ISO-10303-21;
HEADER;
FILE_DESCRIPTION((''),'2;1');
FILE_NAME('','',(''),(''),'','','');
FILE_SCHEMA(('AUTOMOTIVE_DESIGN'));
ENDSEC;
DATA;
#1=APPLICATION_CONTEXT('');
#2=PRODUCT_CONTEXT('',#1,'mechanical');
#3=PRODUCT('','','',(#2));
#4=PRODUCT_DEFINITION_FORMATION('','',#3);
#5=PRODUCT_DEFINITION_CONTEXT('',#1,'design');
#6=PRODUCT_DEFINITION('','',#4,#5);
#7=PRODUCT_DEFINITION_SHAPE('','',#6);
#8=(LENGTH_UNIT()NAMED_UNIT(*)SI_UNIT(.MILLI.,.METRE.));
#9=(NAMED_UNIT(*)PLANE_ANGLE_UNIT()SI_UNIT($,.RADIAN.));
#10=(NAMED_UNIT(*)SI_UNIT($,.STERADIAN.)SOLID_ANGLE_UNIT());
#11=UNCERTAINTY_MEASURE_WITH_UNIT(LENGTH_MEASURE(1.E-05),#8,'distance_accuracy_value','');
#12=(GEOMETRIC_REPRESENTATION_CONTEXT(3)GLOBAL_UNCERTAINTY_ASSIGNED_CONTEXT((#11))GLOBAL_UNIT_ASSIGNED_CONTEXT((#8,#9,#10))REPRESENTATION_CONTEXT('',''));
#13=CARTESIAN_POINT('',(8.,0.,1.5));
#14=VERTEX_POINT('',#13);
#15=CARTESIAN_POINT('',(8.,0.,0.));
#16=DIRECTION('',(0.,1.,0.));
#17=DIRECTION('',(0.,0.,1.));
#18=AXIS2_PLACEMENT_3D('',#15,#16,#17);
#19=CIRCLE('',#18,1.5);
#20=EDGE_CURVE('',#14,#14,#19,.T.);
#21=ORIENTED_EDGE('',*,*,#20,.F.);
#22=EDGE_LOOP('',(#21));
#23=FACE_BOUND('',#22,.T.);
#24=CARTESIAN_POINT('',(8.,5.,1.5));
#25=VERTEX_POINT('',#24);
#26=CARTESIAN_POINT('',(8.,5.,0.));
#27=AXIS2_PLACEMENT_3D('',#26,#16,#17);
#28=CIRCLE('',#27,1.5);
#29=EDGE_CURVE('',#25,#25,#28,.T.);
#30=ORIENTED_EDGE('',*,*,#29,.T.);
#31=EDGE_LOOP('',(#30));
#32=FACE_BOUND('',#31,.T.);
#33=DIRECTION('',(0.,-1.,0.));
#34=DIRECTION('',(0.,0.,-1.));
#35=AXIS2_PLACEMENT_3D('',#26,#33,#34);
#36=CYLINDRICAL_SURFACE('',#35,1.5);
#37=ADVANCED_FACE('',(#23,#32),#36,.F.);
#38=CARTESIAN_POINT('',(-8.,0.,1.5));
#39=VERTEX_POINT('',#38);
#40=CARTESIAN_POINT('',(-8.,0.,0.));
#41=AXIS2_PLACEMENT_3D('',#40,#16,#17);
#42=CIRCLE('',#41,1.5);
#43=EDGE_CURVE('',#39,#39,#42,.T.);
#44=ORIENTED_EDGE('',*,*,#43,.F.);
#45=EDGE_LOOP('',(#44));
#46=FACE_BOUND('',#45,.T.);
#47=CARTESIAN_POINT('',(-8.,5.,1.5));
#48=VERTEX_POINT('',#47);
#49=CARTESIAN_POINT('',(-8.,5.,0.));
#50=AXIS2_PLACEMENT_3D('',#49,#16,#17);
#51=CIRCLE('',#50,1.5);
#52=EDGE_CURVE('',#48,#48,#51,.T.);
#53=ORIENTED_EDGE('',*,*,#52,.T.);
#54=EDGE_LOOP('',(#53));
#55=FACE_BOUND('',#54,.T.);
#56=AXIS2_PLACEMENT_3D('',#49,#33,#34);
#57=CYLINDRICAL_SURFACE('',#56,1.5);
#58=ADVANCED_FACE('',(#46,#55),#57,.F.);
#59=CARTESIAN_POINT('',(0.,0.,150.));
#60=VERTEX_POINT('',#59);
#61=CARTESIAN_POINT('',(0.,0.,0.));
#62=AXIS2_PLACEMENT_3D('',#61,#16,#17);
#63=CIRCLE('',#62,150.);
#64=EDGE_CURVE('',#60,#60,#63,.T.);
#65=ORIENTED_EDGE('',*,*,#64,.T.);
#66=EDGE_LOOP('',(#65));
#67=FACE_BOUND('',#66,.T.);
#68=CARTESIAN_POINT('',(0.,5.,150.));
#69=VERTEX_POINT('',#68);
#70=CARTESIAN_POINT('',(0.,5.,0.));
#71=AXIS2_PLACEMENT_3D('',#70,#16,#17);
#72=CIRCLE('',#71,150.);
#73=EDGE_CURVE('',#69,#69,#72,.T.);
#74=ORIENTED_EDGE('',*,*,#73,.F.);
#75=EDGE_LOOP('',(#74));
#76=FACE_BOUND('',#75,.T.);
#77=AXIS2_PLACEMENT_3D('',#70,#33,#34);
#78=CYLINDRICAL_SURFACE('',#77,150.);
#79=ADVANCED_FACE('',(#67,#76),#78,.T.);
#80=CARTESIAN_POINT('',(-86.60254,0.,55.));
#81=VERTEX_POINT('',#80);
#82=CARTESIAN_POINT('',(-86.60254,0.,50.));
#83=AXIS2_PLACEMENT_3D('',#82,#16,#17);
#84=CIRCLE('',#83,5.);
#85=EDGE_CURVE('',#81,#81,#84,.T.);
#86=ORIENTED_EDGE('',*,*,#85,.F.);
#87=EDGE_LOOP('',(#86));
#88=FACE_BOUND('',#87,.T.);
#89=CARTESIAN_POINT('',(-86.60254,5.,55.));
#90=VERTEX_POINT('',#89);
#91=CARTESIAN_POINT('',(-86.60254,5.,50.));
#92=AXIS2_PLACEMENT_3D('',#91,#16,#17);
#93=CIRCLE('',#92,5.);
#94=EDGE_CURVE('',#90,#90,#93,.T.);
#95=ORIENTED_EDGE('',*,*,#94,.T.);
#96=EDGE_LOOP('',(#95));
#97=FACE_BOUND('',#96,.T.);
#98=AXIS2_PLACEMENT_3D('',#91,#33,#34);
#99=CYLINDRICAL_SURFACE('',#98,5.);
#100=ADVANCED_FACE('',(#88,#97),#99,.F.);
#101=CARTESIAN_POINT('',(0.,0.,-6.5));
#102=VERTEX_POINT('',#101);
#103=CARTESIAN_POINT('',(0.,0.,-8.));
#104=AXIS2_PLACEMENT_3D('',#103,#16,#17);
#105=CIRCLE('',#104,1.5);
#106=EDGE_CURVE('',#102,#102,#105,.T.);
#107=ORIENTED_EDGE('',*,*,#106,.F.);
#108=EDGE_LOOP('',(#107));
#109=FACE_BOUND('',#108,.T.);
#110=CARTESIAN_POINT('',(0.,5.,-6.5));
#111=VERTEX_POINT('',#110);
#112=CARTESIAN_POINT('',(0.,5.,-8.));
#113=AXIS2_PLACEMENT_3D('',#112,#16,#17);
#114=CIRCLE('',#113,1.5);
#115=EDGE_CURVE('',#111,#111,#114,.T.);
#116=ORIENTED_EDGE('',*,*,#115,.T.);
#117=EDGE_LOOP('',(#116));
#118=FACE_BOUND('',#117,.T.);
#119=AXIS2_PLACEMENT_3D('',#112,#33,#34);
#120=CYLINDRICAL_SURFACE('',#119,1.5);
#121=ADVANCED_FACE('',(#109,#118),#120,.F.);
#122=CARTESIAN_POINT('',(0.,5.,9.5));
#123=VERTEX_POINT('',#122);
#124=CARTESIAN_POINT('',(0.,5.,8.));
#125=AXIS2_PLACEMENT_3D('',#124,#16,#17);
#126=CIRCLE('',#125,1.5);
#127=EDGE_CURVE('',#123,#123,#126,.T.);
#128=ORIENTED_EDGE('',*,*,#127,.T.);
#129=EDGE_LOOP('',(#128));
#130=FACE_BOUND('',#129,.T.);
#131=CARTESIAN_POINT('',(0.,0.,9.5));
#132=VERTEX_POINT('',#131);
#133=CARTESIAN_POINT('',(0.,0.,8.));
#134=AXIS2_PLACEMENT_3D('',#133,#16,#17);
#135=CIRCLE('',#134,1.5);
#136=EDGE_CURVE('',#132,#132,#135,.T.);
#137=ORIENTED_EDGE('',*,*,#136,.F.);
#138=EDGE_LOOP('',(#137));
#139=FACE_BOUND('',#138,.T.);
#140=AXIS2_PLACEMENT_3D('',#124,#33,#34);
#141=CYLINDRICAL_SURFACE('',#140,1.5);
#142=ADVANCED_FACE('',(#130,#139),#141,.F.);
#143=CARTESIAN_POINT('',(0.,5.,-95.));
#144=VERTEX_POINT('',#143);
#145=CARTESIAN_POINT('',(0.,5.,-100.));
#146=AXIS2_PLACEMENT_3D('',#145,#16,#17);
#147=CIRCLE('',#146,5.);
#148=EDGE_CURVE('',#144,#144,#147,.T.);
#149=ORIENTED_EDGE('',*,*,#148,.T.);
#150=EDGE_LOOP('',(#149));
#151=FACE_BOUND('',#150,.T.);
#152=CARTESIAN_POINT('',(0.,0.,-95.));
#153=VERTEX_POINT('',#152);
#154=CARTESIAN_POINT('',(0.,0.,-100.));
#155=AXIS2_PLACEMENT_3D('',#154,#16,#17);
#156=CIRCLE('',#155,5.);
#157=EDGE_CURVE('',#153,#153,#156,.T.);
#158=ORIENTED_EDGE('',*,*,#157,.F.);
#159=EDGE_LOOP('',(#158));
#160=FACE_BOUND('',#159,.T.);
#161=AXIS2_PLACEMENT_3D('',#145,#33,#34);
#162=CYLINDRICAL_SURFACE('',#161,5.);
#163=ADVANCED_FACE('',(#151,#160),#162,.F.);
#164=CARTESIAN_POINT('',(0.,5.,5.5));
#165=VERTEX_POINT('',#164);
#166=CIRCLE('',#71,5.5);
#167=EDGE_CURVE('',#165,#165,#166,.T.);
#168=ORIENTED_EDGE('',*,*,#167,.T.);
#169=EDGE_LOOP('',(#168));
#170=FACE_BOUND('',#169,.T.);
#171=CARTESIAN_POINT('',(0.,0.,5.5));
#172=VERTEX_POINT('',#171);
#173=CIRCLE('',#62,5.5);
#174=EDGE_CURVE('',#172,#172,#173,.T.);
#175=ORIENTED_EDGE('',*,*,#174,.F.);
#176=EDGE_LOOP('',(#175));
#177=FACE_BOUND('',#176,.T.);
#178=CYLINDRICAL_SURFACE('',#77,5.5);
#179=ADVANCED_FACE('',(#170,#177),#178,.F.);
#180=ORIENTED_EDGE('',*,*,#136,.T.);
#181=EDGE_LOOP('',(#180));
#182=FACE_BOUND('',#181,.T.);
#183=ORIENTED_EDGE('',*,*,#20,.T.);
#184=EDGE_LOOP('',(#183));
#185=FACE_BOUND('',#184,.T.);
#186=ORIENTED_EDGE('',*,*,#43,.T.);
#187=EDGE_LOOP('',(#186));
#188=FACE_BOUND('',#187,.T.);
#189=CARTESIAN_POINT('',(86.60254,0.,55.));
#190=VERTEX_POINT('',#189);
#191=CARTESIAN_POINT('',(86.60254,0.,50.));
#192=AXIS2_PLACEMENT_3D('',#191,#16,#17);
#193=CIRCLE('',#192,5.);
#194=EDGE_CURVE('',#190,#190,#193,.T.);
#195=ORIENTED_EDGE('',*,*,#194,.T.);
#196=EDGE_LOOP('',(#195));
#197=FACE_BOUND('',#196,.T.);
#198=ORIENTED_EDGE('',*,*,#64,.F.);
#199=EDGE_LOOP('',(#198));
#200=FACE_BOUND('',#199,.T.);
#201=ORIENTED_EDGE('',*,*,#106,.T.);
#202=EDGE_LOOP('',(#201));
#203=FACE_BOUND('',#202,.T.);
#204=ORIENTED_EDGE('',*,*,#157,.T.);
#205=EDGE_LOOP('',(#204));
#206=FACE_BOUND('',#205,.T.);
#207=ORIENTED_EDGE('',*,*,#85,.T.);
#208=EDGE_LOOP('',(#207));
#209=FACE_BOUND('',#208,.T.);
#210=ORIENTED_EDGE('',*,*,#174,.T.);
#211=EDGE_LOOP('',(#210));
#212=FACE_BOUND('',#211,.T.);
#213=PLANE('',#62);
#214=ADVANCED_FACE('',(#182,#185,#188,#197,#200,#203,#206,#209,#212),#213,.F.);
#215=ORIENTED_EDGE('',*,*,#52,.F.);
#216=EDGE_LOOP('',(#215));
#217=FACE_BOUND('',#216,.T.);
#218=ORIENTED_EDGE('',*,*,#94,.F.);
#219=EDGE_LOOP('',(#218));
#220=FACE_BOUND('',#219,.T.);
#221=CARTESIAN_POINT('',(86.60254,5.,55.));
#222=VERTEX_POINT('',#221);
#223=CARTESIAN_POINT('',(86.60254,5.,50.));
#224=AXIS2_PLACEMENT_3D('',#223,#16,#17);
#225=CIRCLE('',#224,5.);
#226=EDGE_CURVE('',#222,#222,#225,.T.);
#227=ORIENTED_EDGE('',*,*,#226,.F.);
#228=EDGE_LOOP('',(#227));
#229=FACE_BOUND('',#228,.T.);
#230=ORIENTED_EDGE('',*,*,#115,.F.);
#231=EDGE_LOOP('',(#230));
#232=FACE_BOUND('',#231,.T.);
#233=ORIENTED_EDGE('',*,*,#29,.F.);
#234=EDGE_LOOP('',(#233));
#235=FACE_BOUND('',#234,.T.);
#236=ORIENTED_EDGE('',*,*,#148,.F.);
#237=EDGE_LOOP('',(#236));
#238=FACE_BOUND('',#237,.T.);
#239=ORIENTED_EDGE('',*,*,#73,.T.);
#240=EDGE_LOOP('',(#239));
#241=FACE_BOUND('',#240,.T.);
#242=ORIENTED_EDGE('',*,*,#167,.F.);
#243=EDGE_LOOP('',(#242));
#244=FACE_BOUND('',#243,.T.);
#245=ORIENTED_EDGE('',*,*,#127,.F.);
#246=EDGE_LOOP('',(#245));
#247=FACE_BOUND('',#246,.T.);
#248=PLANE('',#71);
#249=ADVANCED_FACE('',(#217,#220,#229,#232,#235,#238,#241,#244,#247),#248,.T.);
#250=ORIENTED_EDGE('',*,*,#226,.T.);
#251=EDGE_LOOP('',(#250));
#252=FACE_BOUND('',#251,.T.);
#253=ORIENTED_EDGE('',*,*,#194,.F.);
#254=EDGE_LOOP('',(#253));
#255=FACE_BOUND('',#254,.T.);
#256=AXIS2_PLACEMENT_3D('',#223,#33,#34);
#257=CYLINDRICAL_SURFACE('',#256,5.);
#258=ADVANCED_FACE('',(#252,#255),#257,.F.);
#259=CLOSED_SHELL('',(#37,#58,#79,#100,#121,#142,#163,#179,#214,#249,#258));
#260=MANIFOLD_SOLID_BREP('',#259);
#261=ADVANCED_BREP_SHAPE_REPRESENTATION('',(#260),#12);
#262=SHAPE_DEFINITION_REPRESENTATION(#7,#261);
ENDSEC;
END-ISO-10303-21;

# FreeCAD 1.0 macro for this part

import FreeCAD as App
import Part
import Sketcher
from FreeCAD import Vector

doc = App.newDocument("Part")
body = doc.addObject("PartDesign::Body", "Body")

# Sketch on XZ plane
sketch1 = doc.addObject("Sketcher::SketchObject", "Sketch")
body.addObject(sketch1)
sketch1.AttachmentSupport = (doc.XZ_Plane, [""])
sketch1.MapMode = "FlatFace"
sketch1.addGeometry([
    Part.Circle(Vector(0, 0, 0), Vector(0, 0, 1), 150),  # 0
    Part.Circle(Vector(0, -100, 0), Vector(0, 0, 1), 5),  # 1
    Part.Circle(Vector(-86.6, 50, 0), Vector(0, 0, 1), 5),  # 2
    Part.Circle(Vector(0, -8, 0), Vector(0, 0, 1), 1.5),  # 3
    Part.Circle(Vector(-8, 0, 0), Vector(0, 0, 1), 1.5),  # 4
    Part.Circle(Vector(0, 0, 0), Vector(0, 0, 1), 5.5),  # 5
    Part.Circle(Vector(0, 8, 0), Vector(0, 0, 1), 1.5),  # 6
    Part.Circle(Vector(8, 0, 0), Vector(0, 0, 1), 1.5),  # 7
    Part.Circle(Vector(86.6, 50, 0), Vector(0, 0, 1), 5),  # 8
], False)
sketch1.addConstraint([
    Sketcher.Constraint("Coincident", 0, 3, -1, 1),
    Sketcher.Constraint("Coincident", 5, 3, -1, 1),
    Sketcher.Constraint("Equal", 1, 2),
    Sketcher.Constraint("Equal", 3, 4),
    Sketcher.Constraint("Equal", 4, 6),
    Sketcher.Constraint("Equal", 6, 7),
    Sketcher.Constraint("Equal", 2, 8),
    Sketcher.Constraint("Symmetric", 3, 3, 6, 3, -1, 1),
    Sketcher.Constraint("Symmetric", 4, 3, 7, 3, -1, 1),
    Sketcher.Constraint("Symmetric", 2, 3, 8, 3, -2),
    Sketcher.Constraint("PointOnObject", 1, 3, -2),
    Sketcher.Constraint("PointOnObject", 3, 3, -2),
    Sketcher.Constraint("PointOnObject", 4, 3, -1),
    Sketcher.Constraint("Diameter", 0, 300.0),
    Sketcher.Constraint("Diameter", 1, 10.0),
    Sketcher.Constraint("Diameter", 3, 3.0),
    Sketcher.Constraint("Diameter", 5, 11.0),
    Sketcher.Constraint("DistanceY", 1, 3, -1, 1, 100.0),
    Sketcher.Constraint("DistanceY", -1, 1, 2, 3, 50.0),
    Sketcher.Constraint("DistanceY", 3, 3, -1, 1, 8.0),
    Sketcher.Constraint("DistanceX", 4, 3, -1, 1, 8.0),
    Sketcher.Constraint("DistanceX", 2, 3, -1, 1, 86.60254),
])
pad1 = doc.addObject("PartDesign::Pad", "Pad")
body.addObject(pad1)
pad1.Profile = sketch1
pad1.Length = 5
pad1.Reversed = True

doc.recompute()
